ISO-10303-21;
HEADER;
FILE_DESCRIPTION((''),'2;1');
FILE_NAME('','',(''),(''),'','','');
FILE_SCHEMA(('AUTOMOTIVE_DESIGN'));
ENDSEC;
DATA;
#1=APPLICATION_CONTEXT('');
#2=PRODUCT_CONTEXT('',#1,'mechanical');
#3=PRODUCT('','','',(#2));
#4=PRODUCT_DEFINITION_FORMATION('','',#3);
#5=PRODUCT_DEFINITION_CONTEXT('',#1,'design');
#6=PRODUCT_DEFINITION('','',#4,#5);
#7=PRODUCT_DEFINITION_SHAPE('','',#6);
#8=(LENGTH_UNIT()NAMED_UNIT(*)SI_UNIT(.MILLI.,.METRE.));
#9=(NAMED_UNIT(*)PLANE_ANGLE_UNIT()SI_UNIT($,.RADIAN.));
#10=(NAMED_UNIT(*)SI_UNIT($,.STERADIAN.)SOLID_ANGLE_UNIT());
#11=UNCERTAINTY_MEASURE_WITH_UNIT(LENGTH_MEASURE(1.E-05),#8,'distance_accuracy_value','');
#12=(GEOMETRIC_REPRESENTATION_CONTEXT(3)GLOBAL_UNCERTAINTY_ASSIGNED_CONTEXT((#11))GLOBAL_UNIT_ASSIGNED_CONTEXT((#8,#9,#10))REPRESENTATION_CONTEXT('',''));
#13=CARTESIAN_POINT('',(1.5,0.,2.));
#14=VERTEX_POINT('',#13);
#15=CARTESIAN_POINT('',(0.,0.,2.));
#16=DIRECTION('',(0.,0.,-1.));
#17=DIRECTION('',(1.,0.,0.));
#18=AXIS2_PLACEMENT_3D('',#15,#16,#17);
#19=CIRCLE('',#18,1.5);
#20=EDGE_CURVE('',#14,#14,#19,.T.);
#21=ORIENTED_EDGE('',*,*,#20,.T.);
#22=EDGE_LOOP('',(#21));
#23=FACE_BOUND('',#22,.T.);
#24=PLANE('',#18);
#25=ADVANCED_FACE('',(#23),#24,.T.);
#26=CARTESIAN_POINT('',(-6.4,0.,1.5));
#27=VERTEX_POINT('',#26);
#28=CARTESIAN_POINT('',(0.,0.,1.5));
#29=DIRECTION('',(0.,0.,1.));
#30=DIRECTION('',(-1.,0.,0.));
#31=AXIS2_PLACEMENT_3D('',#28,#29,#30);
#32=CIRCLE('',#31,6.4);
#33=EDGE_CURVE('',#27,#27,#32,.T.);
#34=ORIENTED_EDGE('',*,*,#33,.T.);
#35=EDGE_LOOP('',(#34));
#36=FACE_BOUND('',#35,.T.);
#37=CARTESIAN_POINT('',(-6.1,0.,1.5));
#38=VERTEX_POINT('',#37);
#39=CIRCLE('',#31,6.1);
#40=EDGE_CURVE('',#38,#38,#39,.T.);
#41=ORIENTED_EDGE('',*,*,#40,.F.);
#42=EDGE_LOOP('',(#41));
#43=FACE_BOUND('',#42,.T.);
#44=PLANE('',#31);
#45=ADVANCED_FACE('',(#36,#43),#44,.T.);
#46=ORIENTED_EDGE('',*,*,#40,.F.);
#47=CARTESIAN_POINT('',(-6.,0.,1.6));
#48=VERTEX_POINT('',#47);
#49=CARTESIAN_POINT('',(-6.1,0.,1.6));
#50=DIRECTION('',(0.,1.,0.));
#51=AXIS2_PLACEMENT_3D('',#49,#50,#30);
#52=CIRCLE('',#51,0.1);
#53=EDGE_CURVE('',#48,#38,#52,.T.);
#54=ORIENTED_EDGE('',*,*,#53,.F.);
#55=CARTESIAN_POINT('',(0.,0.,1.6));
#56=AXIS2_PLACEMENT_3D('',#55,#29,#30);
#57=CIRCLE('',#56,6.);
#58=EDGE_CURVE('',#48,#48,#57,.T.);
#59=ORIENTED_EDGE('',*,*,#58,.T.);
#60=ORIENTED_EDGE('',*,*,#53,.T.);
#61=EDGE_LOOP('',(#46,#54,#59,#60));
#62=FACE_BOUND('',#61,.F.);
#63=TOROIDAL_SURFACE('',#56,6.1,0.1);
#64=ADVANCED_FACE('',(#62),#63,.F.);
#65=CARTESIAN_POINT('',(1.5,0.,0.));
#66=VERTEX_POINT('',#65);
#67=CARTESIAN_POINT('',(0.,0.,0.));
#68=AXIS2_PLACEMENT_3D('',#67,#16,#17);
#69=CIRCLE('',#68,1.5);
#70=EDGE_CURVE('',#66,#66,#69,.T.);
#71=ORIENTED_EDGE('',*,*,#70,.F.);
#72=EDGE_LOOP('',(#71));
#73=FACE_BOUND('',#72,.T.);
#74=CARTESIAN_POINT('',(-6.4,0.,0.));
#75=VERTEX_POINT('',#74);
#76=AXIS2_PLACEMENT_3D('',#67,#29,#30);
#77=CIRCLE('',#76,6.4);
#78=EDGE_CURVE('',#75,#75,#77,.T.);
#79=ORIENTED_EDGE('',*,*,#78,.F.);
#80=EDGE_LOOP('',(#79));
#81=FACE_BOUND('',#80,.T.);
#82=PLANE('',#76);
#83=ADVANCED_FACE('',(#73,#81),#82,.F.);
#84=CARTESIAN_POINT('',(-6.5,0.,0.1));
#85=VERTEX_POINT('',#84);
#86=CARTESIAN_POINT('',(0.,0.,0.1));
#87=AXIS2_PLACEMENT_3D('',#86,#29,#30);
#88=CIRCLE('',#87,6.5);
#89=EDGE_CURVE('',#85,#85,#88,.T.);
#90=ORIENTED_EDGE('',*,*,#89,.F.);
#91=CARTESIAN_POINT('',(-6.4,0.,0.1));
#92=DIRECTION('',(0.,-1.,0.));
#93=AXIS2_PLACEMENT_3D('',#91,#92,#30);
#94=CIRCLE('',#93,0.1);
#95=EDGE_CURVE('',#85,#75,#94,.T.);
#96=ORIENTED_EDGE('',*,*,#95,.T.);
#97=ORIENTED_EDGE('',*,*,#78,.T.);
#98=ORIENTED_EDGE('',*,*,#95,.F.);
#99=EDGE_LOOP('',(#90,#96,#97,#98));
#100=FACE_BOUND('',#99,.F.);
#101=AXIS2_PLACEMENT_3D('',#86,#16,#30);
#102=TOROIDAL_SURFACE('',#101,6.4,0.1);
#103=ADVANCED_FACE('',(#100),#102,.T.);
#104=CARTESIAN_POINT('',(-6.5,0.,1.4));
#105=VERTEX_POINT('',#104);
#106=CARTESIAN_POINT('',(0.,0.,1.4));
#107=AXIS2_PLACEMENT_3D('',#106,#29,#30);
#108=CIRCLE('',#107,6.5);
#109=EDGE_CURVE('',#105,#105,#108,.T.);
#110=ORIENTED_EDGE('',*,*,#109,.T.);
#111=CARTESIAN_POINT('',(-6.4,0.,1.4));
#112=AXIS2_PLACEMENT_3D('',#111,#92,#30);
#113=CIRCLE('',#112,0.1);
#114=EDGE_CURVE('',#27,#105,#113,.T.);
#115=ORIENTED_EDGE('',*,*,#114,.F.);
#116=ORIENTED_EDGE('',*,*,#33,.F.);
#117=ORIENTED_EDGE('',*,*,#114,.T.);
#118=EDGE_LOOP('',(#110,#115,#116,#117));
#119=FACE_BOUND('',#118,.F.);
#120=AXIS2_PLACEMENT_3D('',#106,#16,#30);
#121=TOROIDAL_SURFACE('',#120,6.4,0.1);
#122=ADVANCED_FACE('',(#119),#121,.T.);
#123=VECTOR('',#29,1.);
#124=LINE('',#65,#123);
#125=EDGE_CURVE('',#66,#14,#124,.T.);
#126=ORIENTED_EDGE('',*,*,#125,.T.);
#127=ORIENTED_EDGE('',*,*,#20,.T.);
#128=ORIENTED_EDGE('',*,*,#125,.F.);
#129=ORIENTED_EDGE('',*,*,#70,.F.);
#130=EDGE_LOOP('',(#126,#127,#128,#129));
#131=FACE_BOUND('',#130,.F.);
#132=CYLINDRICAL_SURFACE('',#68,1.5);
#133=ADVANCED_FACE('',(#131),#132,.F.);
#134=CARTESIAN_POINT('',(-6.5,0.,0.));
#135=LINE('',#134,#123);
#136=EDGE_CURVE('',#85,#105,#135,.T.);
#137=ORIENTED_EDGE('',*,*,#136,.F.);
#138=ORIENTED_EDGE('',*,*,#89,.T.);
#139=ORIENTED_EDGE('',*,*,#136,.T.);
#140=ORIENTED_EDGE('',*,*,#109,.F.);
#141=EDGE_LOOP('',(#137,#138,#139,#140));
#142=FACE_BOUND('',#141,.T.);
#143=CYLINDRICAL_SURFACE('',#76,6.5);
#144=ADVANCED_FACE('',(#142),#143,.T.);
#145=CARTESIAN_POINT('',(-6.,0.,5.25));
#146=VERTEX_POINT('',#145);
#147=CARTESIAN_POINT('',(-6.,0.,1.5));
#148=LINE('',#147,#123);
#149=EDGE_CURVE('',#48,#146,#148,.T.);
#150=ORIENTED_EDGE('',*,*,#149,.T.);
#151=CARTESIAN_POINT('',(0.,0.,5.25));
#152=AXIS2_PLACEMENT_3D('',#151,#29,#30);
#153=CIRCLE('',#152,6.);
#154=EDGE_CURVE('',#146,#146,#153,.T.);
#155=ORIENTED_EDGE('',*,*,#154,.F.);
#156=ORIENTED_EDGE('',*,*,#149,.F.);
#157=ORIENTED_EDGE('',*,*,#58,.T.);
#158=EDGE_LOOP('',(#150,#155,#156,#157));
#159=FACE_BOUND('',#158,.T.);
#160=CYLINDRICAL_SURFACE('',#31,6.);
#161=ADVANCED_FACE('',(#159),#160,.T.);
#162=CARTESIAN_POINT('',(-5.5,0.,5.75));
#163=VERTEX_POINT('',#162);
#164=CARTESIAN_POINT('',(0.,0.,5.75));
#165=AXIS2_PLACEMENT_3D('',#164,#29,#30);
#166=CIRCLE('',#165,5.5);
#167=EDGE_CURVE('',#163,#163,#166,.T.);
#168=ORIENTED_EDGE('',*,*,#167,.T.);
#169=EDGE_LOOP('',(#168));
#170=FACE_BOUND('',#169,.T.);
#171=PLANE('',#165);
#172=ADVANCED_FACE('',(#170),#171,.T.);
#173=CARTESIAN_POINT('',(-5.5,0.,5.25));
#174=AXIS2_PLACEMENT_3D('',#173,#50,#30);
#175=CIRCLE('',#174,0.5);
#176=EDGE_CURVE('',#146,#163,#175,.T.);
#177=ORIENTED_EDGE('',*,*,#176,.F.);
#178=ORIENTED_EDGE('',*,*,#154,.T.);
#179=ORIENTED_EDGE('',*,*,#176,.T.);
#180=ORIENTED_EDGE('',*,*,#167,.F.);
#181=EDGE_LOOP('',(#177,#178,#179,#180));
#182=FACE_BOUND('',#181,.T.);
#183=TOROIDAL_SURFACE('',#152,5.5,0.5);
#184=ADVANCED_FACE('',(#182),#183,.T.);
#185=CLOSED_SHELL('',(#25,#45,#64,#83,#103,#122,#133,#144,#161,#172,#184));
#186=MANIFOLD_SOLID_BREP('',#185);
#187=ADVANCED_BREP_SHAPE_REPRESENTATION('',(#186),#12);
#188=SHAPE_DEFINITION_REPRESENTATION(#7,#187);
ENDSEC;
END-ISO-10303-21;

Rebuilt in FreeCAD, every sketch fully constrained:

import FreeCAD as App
import Part
import Sketcher
from FreeCAD import Vector


def edges_at(feature, points):
    """Names of the edges that pass closest to the given points."""
    edges = feature.Shape.Edges
    near = lambda p: min(range(len(edges)), key=lambda i: edges[i].distToShape(Part.Vertex(*p))[0])
    return sorted({f"Edge{near(p) + 1}" for p in points})

doc = App.newDocument("Part")
params = doc.addObject("Spreadsheet::Sheet", "Params")
for row, (alias, value) in enumerate([
    ("sketch1_width", "6 mm"),
    ("sketch1_width2", "6.5 mm"),
    ("sketch1_height", "1.5 mm"),
    ("sketch1_height2", "5.75 mm"),
    ("revolution_angle", "360 deg"),
    ("fillet_radius", "0.5 mm"),
    ("fillet2_radius", "0.1 mm"),
    ("sketch2_diameter", "3 mm"),
    ("pocket1_length", "2 mm"),
], start=1):
    params.set(f"A{row}", alias)
    params.set(f"B{row}", "=" + value)
    params.setAlias(f"B{row}", alias)

body = doc.addObject("PartDesign::Body", "Body")

# Sketch on XZ plane
sketch1 = doc.addObject("Sketcher::SketchObject", "Sketch")
body.addObject(sketch1)
sketch1.AttachmentSupport = (doc.XZ_Plane, [""])
sketch1.MapMode = "FlatFace"
sketch1.addGeometry(Part.LineSegment(Vector(-6.5, 1.5, 0), Vector(-6.5, 0, 0)), False)
sketch1.addGeometry(Part.LineSegment(Vector(-6.5, 0, 0), Vector(0, 0, 0)), False)
sketch1.addGeometry(Part.LineSegment(Vector(0, 0, 0), Vector(0, 5.8, 0)), False)
sketch1.addGeometry(Part.LineSegment(Vector(0, 5.8, 0), Vector(-6, 5.8, 0)), False)
sketch1.addGeometry(Part.LineSegment(Vector(-6, 5.8, 0), Vector(-6, 1.5, 0)), False)
sketch1.addGeometry(Part.LineSegment(Vector(-6, 1.5, 0), Vector(-6.5, 1.5, 0)), False)
sketch1.addConstraint(Sketcher.Constraint("Coincident", 0, 2, 1, 1))
sketch1.addConstraint(Sketcher.Constraint("Coincident", 1, 2, 2, 1))
sketch1.addConstraint(Sketcher.Constraint("Coincident", 2, 2, 3, 1))
sketch1.addConstraint(Sketcher.Constraint("Coincident", 3, 2, 4, 1))
sketch1.addConstraint(Sketcher.Constraint("Coincident", 4, 2, 5, 1))
sketch1.addConstraint(Sketcher.Constraint("Coincident", 5, 2, 0, 1))
sketch1.addConstraint(Sketcher.Constraint("Vertical", 0))
sketch1.addConstraint(Sketcher.Constraint("Horizontal", 1))
sketch1.addConstraint(Sketcher.Constraint("Vertical", 2))
sketch1.addConstraint(Sketcher.Constraint("Horizontal", 3))
sketch1.addConstraint(Sketcher.Constraint("Vertical", 4))
sketch1.addConstraint(Sketcher.Constraint("Horizontal", 5))
sketch1.addConstraint(Sketcher.Constraint("Coincident", 1, 2, -1, 1))
sketch1.addConstraint(Sketcher.Constraint("DistanceX", 3, 2, 3, 1, 6.0))
sketch1.addConstraint(Sketcher.Constraint("DistanceX", 1, 1, 1, 2, 6.5))
sketch1.addConstraint(Sketcher.Constraint("DistanceY", 0, 2, 0, 1, 1.5))
sketch1.addConstraint(Sketcher.Constraint("DistanceY", 2, 1, 2, 2, 5.75))
sketch1.setExpression("Constraints[13]", "Params.sketch1_width")
sketch1.setExpression("Constraints[14]", "Params.sketch1_width2")
sketch1.setExpression("Constraints[15]", "Params.sketch1_height")
sketch1.setExpression("Constraints[16]", "Params.sketch1_height2")
revolution = doc.addObject("PartDesign::Revolution", "Revolution")
body.addObject(revolution)
revolution.Profile = sketch1
revolution.ReferenceAxis = (sketch1, ["V_Axis"])
revolution.setExpression("Angle", "Params.revolution_angle")
doc.recompute()

fillet = doc.addObject("PartDesign::Fillet", "Fillet")
body.addObject(fillet)
fillet.Base = (revolution, edges_at(revolution, [(6, 0, 5.75)]))
fillet.setExpression("Radius", "Params.fillet_radius")
doc.recompute()

fillet2 = doc.addObject("PartDesign::Fillet", "Fillet001")
body.addObject(fillet2)
fillet2.Base = (fillet, edges_at(fillet, [(6.5, 0, 1.5), (6, 0, 1.5), (6.5, 0, 0)]))
fillet2.setExpression("Radius", "Params.fillet2_radius")

# Sketch on XY plane
sketch2 = doc.addObject("Sketcher::SketchObject", "Sketch001")
body.addObject(sketch2)
sketch2.AttachmentSupport = (doc.XY_Plane, [""])
sketch2.MapMode = "FlatFace"
sketch2.addGeometry(Part.Circle(Vector(0, 0, 0), Vector(0, 0, 1), 1.5), False)
sketch2.addConstraint(Sketcher.Constraint("Coincident", 0, 3, -1, 1))
sketch2.addConstraint(Sketcher.Constraint("Diameter", 0, 3.0))
sketch2.setExpression("Constraints[1]", "Params.sketch2_diameter")
pocket1 = doc.addObject("PartDesign::Pocket", "Pocket")
body.addObject(pocket1)
pocket1.Profile = sketch2
pocket1.setExpression("Length", "Params.pocket1_length")
pocket1.Reversed = True

doc.recompute()
